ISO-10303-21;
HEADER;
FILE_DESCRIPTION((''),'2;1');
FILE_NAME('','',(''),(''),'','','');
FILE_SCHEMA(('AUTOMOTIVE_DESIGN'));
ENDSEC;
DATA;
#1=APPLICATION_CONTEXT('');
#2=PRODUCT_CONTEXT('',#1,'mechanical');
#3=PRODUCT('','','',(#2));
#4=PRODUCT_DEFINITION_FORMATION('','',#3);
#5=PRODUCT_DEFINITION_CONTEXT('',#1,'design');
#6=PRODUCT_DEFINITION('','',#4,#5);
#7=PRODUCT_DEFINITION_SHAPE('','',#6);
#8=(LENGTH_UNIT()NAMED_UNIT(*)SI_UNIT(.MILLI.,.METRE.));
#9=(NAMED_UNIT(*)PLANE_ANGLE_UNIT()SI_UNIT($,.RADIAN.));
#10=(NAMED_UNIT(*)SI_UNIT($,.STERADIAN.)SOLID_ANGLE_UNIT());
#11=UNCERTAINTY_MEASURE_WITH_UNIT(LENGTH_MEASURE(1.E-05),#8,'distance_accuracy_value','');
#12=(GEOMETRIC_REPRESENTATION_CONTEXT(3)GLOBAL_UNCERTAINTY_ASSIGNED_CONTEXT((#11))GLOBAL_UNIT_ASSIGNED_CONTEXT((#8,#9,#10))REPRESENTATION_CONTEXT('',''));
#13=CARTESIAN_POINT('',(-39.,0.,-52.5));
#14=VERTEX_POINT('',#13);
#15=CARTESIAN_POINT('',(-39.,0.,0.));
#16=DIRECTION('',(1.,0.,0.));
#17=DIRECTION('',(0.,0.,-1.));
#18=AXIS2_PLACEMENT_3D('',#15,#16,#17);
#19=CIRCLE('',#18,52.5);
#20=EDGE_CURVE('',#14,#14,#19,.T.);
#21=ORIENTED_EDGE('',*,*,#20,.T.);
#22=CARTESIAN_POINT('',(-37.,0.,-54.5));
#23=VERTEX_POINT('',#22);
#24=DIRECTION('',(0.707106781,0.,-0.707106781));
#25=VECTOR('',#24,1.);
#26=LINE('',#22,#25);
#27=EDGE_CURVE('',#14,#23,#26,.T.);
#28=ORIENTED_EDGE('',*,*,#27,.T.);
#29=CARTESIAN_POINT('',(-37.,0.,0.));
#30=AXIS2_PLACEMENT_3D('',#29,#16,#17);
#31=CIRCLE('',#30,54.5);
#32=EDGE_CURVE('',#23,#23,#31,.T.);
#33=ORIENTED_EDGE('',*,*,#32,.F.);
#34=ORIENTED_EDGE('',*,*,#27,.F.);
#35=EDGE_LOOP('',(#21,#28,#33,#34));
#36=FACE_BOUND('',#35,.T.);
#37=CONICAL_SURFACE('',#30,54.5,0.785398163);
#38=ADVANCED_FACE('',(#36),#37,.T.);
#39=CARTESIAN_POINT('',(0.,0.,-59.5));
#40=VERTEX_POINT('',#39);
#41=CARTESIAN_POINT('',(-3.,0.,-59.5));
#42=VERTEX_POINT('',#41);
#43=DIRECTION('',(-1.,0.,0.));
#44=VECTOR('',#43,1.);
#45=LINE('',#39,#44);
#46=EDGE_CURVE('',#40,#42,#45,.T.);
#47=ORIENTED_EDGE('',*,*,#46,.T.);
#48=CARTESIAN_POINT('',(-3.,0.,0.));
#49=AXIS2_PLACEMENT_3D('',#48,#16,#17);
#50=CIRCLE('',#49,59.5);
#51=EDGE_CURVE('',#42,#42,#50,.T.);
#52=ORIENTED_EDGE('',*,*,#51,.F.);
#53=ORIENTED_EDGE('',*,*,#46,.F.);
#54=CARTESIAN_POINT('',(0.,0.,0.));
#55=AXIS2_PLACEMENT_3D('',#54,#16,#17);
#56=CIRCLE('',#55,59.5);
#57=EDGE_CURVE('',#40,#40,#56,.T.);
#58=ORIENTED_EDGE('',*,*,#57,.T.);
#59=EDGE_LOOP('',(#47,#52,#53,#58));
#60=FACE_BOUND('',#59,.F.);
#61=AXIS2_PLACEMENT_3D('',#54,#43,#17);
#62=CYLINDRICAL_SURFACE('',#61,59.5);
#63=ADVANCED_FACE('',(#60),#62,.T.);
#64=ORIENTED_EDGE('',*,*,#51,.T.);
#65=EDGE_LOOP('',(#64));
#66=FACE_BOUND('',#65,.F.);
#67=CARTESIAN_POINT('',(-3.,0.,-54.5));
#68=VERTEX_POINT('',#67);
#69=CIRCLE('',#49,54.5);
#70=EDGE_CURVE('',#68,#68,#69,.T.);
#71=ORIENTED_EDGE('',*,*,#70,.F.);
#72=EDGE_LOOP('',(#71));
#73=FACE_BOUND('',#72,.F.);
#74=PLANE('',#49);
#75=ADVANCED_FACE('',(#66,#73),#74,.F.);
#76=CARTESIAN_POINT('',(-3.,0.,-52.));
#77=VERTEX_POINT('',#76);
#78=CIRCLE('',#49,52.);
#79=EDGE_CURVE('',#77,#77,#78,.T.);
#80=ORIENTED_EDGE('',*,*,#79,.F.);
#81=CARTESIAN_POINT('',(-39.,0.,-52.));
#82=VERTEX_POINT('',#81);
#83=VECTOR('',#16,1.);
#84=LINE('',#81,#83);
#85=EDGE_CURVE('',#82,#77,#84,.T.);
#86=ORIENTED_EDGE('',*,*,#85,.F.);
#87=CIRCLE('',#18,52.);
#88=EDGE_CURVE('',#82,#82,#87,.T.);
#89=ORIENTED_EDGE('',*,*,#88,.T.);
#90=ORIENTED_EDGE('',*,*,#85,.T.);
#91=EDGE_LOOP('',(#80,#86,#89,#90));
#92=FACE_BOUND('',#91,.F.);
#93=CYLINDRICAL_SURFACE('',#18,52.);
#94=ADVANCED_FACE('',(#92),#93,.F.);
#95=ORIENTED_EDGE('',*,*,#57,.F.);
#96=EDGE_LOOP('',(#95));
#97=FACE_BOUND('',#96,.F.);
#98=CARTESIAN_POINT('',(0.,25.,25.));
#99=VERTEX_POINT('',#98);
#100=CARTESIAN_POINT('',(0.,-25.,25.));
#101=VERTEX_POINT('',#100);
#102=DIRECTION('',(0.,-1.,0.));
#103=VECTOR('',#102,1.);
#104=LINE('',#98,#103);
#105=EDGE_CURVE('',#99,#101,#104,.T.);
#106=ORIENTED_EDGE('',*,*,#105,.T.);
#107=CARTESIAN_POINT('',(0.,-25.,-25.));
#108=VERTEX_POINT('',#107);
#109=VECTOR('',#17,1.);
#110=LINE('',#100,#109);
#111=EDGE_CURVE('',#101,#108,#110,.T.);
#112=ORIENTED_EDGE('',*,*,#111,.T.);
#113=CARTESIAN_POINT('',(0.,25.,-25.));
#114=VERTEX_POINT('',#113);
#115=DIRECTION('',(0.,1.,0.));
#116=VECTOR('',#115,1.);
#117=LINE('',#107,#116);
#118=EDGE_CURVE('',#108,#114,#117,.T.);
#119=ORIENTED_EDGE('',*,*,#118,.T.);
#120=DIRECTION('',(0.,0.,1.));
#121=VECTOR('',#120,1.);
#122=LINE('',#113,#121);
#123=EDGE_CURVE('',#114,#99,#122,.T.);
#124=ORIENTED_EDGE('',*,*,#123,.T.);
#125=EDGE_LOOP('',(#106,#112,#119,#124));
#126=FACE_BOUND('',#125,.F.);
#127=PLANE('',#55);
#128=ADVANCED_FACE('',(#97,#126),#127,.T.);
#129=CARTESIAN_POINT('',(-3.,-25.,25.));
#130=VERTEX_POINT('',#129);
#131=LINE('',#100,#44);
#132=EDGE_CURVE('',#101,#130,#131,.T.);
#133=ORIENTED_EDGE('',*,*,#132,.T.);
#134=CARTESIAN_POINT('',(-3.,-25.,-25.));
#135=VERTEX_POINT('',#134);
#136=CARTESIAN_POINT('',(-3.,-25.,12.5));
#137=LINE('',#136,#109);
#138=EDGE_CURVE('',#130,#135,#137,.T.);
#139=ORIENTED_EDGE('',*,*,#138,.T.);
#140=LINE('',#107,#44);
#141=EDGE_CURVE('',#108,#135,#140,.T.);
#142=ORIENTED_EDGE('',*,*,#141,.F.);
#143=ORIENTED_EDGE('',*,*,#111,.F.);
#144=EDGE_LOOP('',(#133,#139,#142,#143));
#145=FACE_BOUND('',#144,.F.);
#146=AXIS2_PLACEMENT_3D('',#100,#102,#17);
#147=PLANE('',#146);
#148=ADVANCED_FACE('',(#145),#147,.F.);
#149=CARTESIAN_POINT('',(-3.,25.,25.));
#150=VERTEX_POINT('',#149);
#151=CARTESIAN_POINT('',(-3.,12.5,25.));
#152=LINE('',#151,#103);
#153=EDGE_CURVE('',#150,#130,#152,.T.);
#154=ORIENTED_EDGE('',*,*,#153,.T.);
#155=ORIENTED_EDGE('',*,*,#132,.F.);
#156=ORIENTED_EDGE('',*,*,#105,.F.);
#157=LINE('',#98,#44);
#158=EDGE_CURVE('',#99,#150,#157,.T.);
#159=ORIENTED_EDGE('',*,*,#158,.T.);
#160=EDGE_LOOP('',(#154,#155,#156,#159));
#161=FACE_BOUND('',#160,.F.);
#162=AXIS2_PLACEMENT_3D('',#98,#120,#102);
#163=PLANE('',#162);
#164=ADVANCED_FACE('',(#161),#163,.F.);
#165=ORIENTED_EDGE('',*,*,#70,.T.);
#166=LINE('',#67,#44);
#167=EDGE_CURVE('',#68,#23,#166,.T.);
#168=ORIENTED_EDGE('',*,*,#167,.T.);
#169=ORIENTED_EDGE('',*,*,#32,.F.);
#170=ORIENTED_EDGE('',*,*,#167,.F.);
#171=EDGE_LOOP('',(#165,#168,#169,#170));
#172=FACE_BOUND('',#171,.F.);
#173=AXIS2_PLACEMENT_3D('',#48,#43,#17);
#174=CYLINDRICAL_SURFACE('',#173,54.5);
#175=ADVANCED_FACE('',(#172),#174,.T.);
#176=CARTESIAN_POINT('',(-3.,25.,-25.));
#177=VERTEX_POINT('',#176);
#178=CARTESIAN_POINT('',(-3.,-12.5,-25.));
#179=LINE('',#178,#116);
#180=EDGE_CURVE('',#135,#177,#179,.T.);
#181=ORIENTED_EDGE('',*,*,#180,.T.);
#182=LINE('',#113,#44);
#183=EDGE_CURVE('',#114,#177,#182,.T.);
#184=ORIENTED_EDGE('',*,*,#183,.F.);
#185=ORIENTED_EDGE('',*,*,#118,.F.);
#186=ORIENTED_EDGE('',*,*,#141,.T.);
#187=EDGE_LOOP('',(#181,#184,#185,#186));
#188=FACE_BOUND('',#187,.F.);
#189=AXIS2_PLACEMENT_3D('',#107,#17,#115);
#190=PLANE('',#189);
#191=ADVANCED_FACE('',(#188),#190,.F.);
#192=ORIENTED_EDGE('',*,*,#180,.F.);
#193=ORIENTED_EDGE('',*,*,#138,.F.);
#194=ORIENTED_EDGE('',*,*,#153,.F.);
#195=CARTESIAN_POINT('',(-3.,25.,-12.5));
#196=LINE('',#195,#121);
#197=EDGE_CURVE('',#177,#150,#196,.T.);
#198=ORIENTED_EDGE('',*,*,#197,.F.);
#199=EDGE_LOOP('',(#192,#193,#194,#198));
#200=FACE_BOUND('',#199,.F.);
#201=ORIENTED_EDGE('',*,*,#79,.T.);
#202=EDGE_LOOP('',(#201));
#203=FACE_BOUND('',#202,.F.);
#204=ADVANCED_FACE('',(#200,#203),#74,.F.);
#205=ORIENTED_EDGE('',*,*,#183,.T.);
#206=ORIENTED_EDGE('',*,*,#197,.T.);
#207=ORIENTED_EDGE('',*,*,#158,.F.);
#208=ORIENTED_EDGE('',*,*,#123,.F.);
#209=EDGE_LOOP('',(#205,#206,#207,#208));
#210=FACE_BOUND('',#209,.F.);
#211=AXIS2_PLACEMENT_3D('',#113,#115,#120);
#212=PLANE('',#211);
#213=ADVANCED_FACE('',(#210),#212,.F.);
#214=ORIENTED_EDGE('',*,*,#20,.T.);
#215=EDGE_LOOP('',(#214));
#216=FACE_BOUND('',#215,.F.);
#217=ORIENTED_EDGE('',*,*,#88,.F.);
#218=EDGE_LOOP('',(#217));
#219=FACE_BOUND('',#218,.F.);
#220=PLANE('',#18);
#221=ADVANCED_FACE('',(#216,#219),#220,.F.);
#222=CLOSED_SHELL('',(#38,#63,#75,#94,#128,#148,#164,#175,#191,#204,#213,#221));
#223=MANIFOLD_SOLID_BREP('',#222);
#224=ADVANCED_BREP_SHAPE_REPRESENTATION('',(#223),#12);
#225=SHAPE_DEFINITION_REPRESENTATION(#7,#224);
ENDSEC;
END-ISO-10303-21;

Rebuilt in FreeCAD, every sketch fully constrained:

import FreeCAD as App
import Part
import Sketcher

V = App.Vector
Q = App.Units.Quantity


def edges_at(feature, points):
    """Names of the edges that pass closest to the given points."""
    edges = feature.Shape.Edges
    near = lambda p: min(range(len(edges)), key=lambda i: edges[i].distToShape(Part.Vertex(*p))[0])
    return sorted({f"Edge{near(p) + 1}" for p in points})

doc = App.newDocument("Part")
body = doc.addObject("PartDesign::Body", "Body")

# Sketch on XZ plane
sketch1 = body.newObject("Sketcher::SketchObject", "Sketch")
sketch1.AttachmentSupport = (doc.getObject("XZ_Plane"), [""])
sketch1.MapMode = "FlatFace"
sketch1.addGeometry([
    Part.LineSegment(V(-3, 0, 0), V(0, 0, 0)),  # 0
    Part.LineSegment(V(0, 0, 0), V(0, -59.5, 0)),  # 1
    Part.LineSegment(V(0, -59.5, 0), V(-3, -59.5, 0)),  # 2
    Part.LineSegment(V(-3, -59.5, 0), V(-3, -54.5, 0)),  # 3
    Part.LineSegment(V(-3, -54.5, 0), V(-39, -54.5, 0)),  # 4
    Part.LineSegment(V(-39, -54.5, 0), V(-39, -52, 0)),  # 5
    Part.LineSegment(V(-39, -52, 0), V(-3, -52, 0)),  # 6
    Part.LineSegment(V(-3, -52, 0), V(-3, 0, 0)),  # 7
], False)
sketch1.addConstraint([
    Sketcher.Constraint("Coincident", 0, 2, 1, 1),
    Sketcher.Constraint("Coincident", 1, 2, 2, 1),
    Sketcher.Constraint("Coincident", 2, 2, 3, 1),
    Sketcher.Constraint("Coincident", 3, 2, 4, 1),
    Sketcher.Constraint("Coincident", 4, 2, 5, 1),
    Sketcher.Constraint("Coincident", 5, 2, 6, 1),
    Sketcher.Constraint("Coincident", 6, 2, 7, 1),
    Sketcher.Constraint("Coincident", 7, 2, 0, 1),
    Sketcher.Constraint("Horizontal", 0),
    Sketcher.Constraint("Vertical", 1),
    Sketcher.Constraint("Horizontal", 2),
    Sketcher.Constraint("Vertical", 3),
    Sketcher.Constraint("Horizontal", 4),
    Sketcher.Constraint("Vertical", 5),
    Sketcher.Constraint("Horizontal", 6),
    Sketcher.Constraint("Vertical", 7),
    Sketcher.Constraint("Coincident", 0, 2, -1, 1),
    Sketcher.Constraint("Vertical", 3, 2, 6, 2),
    Sketcher.Constraint("DistanceX", 0, 1, 0, 2, Q("3 mm")),
    Sketcher.Constraint("DistanceX", 4, 2, 4, 1, Q("36 mm")),
    Sketcher.Constraint("DistanceY", 3, 1, 3, 2, Q("5 mm")),
    Sketcher.Constraint("DistanceY", 7, 1, 7, 2, Q("52 mm")),
    Sketcher.Constraint("DistanceY", 5, 1, 5, 2, Q("2.5 mm")),
])
revolution = body.newObject("PartDesign::Revolution", "Revolution")
revolution.Profile = sketch1
revolution.ReferenceAxis = (sketch1, ["H_Axis"])
revolution.Angle = 360
doc.recompute()

chamfer = body.newObject("PartDesign::Chamfer", "Chamfer")
chamfer.Base = (revolution, edges_at(revolution, [(-39, 0, 54.5)]))
chamfer.Size = 2

# Sketch on YZ plane
sketch2 = body.newObject("Sketcher::SketchObject", "Sketch001")
sketch2.AttachmentSupport = (doc.getObject("YZ_Plane"), [""])
sketch2.MapMode = "FlatFace"
sketch2.addGeometry([
    Part.LineSegment(V(25, 25, 0), V(-25, 25, 0)),
    Part.LineSegment(V(-25, 25, 0), V(-25, -25, 0)),
    Part.LineSegment(V(-25, -25, 0), V(25, -25, 0)),
    Part.LineSegment(V(25, -25, 0), V(25, 25, 0)),
], False)
sketch2.addConstraint([
    Sketcher.Constraint("Coincident", 0, 2, 1, 1),
    Sketcher.Constraint("Coincident", 1, 2, 2, 1),
    Sketcher.Constraint("Coincident", 2, 2, 3, 1),
    Sketcher.Constraint("Coincident", 3, 2, 0, 1),
    Sketcher.Constraint("Horizontal", 0),
    Sketcher.Constraint("Vertical", 1),
    Sketcher.Constraint("Horizontal", 2),
    Sketcher.Constraint("Vertical", 3),
    Sketcher.Constraint("Symmetric", 0, 2, 2, 2, -1, 1),
    Sketcher.Constraint("Equal", 2, 1),
    Sketcher.Constraint("DistanceX", 0, 2, 0, 1, Q("50 mm")),
])
pocket1 = body.newObject("PartDesign::Pocket", "Pocket")
pocket1.Profile = sketch2
pocket1.Length = 10

doc.recompute()
